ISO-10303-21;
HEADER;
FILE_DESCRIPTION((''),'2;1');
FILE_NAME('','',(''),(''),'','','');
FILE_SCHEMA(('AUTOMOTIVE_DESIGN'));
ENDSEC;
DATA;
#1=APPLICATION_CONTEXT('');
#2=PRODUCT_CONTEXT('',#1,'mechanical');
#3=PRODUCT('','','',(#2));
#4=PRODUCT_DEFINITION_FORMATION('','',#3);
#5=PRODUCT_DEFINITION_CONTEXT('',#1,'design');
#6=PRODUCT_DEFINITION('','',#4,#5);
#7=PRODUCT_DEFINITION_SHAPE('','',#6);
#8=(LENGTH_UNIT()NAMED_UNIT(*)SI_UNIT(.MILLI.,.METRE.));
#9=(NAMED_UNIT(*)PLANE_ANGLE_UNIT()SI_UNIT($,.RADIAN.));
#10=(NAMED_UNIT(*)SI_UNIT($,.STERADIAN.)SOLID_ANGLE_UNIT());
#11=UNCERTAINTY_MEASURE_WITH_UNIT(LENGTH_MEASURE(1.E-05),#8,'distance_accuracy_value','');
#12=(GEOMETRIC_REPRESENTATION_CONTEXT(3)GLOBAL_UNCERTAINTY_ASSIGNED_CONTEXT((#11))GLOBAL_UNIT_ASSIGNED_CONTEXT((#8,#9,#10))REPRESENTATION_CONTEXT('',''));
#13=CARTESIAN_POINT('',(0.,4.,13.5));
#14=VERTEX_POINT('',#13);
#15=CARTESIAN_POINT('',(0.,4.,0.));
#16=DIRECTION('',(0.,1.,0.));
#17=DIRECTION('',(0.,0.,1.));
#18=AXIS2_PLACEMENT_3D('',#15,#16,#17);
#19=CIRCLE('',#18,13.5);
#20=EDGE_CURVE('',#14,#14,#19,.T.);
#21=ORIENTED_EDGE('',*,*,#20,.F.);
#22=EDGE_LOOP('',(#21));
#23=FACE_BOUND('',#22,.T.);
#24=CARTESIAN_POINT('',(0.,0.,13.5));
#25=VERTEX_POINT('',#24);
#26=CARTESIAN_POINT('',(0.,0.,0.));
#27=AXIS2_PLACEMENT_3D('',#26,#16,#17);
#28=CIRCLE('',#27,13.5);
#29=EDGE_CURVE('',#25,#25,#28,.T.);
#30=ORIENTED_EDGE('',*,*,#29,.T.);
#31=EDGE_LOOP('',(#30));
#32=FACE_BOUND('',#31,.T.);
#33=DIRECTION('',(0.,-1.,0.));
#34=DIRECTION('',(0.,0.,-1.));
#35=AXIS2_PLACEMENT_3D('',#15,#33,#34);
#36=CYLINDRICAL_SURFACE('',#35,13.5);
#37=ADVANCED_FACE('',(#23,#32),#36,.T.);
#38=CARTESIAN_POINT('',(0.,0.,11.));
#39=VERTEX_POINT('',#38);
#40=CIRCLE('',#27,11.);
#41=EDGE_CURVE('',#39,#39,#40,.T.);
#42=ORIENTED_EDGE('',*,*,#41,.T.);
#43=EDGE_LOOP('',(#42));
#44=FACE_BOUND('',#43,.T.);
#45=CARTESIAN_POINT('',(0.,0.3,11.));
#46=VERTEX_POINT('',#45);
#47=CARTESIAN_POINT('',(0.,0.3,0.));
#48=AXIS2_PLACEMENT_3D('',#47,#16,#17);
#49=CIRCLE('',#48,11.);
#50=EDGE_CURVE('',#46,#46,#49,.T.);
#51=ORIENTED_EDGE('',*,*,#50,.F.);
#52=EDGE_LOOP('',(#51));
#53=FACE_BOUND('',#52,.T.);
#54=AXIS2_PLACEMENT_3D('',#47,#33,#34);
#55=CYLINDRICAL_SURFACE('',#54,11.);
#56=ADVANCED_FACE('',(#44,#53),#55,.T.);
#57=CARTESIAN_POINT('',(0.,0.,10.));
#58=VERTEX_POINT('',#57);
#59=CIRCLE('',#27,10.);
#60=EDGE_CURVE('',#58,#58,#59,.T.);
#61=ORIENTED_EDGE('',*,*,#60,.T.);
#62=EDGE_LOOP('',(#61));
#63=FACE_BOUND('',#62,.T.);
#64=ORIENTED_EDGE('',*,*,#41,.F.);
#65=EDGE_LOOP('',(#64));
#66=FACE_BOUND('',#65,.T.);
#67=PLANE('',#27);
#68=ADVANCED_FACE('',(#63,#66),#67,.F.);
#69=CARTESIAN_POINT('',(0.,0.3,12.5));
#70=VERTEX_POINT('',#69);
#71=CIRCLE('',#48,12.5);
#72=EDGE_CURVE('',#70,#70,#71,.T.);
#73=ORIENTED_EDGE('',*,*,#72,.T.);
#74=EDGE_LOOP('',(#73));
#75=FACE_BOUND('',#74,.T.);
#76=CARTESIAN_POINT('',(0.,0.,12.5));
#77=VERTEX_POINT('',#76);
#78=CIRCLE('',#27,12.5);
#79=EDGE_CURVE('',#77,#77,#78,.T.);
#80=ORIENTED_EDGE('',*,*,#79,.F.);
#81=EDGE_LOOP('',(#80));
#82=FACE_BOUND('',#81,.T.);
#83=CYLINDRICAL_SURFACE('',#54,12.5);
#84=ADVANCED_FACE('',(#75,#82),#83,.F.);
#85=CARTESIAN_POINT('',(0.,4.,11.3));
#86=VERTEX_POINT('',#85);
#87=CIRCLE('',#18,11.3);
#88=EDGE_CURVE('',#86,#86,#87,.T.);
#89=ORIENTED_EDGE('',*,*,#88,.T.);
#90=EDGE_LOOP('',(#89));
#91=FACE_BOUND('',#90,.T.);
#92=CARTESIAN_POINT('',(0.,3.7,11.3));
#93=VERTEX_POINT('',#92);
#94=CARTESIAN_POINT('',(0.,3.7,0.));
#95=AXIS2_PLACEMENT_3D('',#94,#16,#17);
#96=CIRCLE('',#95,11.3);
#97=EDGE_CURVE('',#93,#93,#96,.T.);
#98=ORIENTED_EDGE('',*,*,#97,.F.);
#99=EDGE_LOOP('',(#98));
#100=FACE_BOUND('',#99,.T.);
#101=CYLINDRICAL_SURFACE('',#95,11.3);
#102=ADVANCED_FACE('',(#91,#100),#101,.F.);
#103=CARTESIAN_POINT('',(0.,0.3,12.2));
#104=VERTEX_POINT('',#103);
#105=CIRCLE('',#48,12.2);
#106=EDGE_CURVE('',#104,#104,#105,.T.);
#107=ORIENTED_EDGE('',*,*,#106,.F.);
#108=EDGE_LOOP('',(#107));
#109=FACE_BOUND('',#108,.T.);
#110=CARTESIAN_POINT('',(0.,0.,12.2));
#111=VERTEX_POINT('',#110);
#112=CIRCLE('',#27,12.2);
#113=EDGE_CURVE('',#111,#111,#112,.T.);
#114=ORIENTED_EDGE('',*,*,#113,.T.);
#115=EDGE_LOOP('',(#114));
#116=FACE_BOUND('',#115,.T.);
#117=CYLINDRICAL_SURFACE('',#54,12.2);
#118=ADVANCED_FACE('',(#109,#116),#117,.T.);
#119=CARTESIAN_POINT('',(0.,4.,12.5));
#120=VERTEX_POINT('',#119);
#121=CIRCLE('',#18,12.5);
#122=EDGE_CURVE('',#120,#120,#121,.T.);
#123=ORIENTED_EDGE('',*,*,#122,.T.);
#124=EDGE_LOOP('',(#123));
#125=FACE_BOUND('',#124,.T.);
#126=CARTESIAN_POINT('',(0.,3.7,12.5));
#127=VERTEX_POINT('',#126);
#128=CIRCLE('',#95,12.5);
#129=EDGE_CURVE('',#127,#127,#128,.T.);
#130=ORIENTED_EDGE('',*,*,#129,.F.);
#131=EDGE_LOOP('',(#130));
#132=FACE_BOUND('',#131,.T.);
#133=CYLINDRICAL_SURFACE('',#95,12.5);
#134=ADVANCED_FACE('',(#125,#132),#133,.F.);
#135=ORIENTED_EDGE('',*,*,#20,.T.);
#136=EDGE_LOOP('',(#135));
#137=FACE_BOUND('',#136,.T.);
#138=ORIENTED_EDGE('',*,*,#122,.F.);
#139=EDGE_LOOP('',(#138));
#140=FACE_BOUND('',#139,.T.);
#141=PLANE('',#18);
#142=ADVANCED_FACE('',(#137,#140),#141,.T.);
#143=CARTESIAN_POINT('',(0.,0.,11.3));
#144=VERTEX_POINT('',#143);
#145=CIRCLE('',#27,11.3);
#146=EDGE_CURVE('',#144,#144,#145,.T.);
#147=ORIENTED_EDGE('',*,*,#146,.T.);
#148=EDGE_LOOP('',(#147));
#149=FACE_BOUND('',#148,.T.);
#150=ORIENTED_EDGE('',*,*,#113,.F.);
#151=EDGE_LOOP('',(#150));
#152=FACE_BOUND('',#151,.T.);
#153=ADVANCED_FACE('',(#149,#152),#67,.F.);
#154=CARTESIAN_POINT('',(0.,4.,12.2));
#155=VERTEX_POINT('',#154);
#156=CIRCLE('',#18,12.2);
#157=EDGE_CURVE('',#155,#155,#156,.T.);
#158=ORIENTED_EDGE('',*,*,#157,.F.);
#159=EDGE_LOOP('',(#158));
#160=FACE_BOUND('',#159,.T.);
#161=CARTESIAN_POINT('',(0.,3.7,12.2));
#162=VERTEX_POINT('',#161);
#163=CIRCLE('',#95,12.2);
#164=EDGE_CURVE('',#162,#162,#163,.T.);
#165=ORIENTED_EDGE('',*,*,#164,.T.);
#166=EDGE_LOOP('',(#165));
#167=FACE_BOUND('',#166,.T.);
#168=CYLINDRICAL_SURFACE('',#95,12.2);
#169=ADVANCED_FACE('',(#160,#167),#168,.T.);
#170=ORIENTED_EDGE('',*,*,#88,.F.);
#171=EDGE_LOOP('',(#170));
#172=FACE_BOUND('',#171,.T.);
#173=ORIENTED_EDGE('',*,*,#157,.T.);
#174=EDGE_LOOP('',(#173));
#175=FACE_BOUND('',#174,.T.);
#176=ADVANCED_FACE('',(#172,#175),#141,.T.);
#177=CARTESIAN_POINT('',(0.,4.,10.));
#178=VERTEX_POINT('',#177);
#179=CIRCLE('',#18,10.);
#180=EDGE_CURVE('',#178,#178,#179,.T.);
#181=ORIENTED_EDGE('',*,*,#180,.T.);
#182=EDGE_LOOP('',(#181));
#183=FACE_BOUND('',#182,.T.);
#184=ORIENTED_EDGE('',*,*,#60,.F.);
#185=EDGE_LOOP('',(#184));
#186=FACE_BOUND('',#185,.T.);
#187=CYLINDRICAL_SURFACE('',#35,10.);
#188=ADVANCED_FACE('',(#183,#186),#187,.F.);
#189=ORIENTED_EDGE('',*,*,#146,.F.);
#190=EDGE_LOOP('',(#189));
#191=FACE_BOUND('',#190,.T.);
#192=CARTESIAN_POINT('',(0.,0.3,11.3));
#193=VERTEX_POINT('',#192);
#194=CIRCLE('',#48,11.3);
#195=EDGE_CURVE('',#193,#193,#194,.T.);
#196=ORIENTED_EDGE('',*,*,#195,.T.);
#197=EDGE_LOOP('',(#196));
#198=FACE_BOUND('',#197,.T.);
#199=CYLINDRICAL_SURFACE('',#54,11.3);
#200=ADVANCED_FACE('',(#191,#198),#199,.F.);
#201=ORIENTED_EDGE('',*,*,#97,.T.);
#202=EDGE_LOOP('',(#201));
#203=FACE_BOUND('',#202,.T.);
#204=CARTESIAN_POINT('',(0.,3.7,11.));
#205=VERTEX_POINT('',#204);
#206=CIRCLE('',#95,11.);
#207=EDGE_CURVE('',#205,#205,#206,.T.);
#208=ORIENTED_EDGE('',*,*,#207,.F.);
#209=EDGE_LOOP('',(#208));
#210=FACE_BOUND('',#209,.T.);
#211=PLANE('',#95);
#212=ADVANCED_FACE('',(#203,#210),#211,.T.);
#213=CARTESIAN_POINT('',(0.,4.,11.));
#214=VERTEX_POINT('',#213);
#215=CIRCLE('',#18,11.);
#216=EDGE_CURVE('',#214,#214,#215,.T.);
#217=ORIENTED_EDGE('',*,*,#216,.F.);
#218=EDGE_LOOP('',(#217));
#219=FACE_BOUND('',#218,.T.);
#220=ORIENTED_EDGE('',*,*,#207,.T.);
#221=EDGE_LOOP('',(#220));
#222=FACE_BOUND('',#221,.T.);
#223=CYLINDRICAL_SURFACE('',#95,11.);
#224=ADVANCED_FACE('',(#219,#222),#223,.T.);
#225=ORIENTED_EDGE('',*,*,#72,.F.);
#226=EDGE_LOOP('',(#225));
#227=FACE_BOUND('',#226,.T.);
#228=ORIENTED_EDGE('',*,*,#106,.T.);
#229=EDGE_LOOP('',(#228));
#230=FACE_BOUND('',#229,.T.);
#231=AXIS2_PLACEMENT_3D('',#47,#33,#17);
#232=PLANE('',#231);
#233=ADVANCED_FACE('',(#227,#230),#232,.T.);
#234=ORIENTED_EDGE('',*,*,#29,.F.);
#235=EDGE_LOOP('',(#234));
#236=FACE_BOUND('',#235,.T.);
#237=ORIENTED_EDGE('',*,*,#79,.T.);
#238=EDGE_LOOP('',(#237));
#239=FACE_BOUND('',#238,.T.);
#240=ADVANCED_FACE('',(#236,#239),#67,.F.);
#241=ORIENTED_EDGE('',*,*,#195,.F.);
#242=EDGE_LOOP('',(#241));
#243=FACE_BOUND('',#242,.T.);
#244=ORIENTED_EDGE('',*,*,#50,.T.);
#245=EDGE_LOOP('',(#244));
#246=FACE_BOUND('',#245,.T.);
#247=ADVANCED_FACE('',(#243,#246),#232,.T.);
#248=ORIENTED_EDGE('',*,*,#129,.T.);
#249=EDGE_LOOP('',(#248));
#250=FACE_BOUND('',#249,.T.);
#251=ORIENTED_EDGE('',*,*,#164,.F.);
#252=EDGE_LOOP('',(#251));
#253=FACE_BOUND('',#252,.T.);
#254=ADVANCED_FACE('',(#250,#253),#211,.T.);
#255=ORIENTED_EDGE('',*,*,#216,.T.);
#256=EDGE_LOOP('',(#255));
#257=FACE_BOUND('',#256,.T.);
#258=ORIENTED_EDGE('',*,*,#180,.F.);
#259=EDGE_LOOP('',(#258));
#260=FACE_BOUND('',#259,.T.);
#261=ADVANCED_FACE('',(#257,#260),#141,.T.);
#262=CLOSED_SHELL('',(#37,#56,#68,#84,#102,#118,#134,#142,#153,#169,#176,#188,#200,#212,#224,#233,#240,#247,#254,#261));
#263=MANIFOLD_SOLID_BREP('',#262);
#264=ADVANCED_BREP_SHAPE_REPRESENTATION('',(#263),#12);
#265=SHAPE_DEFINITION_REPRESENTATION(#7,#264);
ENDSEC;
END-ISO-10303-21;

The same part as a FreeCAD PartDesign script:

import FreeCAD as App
import Part
import Sketcher
Q = App.Units.Quantity

doc = App.newDocument("Part")
body = doc.addObject("PartDesign::Body", "Body")

sketch1 = body.newObject("Sketcher::SketchObject", "Sketch")
sketch1.AttachmentSupport = (doc.getObject("XZ_Plane"), [""])
sketch1.MapMode = "FlatFace"
sketch1.addGeometry([
    Part.Circle(App.Vector(0, 0, 0), App.Vector(0, 0, 1), 13.5),
    Part.Circle(App.Vector(0, 0, 0), App.Vector(0, 0, 1), 10),
], False)
sketch1.addConstraint([
    Sketcher.Constraint("Coincident", 0, 3, -1, 1),
    Sketcher.Constraint("Coincident", 1, 3, -1, 1),
    Sketcher.Constraint("Diameter", 0, Q("27 mm")),
    Sketcher.Constraint("Diameter", 1, Q("20 mm")),
])
pad1 = body.newObject("PartDesign::Pad", "Pad")
pad1.Profile = sketch1
pad1.Length = 4
pad1.Reversed = True

sketch2 = body.newObject("Sketcher::SketchObject", "Sketch001")
sketch2.AttachmentSupport = (doc.getObject("XZ_Plane"), [""])
sketch2.MapMode = "FlatFace"
sketch2.AttachmentOffset = App.Placement(App.Vector(0, 0, -4), App.Rotation())
sketch2.addGeometry([
    Part.Circle(App.Vector(0, 0, 0), App.Vector(0, 0, 1), 12.5),
    Part.Circle(App.Vector(0, 0, 0), App.Vector(0, 0, 1), 12.2),
    Part.Circle(App.Vector(0, 0, 0), App.Vector(0, 0, 1), 11.3),
    Part.Circle(App.Vector(0, 0, 0), App.Vector(0, 0, 1), 11),
], False)
sketch2.addConstraint([
    Sketcher.Constraint("Coincident", 0, 3, -1, 1),
    Sketcher.Constraint("Coincident", 1, 3, -1, 1),
    Sketcher.Constraint("Coincident", 2, 3, -1, 1),
    Sketcher.Constraint("Coincident", 3, 3, -1, 1),
    Sketcher.Constraint("Diameter", 0, Q("25 mm")),
    Sketcher.Constraint("Diameter", 3, Q("22 mm")),
    Sketcher.Constraint("Diameter", 1, Q("24.4 mm")),
    Sketcher.Constraint("Diameter", 2, Q("22.6 mm")),
])
pocket1 = body.newObject("PartDesign::Pocket", "Pocket")
pocket1.Profile = sketch2
pocket1.Length = 0.3
pocket1.Reversed = True
doc.recompute()

datumplane = body.newObject("PartDesign::Plane", "DatumPlane")
datumplane.AttachmentSupport = (doc.getObject("XZ_Plane"), [""])
datumplane.MapMode = "FlatFace"
datumplane.AttachmentOffset = App.Placement(App.Vector(0, 0, -2), App.Rotation())
mirrored = body.newObject("PartDesign::Mirrored", "Mirrored")
mirrored.Originals = [pocket1]
mirrored.MirrorPlane = (datumplane, [""])
body.Tip = mirrored

doc.recompute()
